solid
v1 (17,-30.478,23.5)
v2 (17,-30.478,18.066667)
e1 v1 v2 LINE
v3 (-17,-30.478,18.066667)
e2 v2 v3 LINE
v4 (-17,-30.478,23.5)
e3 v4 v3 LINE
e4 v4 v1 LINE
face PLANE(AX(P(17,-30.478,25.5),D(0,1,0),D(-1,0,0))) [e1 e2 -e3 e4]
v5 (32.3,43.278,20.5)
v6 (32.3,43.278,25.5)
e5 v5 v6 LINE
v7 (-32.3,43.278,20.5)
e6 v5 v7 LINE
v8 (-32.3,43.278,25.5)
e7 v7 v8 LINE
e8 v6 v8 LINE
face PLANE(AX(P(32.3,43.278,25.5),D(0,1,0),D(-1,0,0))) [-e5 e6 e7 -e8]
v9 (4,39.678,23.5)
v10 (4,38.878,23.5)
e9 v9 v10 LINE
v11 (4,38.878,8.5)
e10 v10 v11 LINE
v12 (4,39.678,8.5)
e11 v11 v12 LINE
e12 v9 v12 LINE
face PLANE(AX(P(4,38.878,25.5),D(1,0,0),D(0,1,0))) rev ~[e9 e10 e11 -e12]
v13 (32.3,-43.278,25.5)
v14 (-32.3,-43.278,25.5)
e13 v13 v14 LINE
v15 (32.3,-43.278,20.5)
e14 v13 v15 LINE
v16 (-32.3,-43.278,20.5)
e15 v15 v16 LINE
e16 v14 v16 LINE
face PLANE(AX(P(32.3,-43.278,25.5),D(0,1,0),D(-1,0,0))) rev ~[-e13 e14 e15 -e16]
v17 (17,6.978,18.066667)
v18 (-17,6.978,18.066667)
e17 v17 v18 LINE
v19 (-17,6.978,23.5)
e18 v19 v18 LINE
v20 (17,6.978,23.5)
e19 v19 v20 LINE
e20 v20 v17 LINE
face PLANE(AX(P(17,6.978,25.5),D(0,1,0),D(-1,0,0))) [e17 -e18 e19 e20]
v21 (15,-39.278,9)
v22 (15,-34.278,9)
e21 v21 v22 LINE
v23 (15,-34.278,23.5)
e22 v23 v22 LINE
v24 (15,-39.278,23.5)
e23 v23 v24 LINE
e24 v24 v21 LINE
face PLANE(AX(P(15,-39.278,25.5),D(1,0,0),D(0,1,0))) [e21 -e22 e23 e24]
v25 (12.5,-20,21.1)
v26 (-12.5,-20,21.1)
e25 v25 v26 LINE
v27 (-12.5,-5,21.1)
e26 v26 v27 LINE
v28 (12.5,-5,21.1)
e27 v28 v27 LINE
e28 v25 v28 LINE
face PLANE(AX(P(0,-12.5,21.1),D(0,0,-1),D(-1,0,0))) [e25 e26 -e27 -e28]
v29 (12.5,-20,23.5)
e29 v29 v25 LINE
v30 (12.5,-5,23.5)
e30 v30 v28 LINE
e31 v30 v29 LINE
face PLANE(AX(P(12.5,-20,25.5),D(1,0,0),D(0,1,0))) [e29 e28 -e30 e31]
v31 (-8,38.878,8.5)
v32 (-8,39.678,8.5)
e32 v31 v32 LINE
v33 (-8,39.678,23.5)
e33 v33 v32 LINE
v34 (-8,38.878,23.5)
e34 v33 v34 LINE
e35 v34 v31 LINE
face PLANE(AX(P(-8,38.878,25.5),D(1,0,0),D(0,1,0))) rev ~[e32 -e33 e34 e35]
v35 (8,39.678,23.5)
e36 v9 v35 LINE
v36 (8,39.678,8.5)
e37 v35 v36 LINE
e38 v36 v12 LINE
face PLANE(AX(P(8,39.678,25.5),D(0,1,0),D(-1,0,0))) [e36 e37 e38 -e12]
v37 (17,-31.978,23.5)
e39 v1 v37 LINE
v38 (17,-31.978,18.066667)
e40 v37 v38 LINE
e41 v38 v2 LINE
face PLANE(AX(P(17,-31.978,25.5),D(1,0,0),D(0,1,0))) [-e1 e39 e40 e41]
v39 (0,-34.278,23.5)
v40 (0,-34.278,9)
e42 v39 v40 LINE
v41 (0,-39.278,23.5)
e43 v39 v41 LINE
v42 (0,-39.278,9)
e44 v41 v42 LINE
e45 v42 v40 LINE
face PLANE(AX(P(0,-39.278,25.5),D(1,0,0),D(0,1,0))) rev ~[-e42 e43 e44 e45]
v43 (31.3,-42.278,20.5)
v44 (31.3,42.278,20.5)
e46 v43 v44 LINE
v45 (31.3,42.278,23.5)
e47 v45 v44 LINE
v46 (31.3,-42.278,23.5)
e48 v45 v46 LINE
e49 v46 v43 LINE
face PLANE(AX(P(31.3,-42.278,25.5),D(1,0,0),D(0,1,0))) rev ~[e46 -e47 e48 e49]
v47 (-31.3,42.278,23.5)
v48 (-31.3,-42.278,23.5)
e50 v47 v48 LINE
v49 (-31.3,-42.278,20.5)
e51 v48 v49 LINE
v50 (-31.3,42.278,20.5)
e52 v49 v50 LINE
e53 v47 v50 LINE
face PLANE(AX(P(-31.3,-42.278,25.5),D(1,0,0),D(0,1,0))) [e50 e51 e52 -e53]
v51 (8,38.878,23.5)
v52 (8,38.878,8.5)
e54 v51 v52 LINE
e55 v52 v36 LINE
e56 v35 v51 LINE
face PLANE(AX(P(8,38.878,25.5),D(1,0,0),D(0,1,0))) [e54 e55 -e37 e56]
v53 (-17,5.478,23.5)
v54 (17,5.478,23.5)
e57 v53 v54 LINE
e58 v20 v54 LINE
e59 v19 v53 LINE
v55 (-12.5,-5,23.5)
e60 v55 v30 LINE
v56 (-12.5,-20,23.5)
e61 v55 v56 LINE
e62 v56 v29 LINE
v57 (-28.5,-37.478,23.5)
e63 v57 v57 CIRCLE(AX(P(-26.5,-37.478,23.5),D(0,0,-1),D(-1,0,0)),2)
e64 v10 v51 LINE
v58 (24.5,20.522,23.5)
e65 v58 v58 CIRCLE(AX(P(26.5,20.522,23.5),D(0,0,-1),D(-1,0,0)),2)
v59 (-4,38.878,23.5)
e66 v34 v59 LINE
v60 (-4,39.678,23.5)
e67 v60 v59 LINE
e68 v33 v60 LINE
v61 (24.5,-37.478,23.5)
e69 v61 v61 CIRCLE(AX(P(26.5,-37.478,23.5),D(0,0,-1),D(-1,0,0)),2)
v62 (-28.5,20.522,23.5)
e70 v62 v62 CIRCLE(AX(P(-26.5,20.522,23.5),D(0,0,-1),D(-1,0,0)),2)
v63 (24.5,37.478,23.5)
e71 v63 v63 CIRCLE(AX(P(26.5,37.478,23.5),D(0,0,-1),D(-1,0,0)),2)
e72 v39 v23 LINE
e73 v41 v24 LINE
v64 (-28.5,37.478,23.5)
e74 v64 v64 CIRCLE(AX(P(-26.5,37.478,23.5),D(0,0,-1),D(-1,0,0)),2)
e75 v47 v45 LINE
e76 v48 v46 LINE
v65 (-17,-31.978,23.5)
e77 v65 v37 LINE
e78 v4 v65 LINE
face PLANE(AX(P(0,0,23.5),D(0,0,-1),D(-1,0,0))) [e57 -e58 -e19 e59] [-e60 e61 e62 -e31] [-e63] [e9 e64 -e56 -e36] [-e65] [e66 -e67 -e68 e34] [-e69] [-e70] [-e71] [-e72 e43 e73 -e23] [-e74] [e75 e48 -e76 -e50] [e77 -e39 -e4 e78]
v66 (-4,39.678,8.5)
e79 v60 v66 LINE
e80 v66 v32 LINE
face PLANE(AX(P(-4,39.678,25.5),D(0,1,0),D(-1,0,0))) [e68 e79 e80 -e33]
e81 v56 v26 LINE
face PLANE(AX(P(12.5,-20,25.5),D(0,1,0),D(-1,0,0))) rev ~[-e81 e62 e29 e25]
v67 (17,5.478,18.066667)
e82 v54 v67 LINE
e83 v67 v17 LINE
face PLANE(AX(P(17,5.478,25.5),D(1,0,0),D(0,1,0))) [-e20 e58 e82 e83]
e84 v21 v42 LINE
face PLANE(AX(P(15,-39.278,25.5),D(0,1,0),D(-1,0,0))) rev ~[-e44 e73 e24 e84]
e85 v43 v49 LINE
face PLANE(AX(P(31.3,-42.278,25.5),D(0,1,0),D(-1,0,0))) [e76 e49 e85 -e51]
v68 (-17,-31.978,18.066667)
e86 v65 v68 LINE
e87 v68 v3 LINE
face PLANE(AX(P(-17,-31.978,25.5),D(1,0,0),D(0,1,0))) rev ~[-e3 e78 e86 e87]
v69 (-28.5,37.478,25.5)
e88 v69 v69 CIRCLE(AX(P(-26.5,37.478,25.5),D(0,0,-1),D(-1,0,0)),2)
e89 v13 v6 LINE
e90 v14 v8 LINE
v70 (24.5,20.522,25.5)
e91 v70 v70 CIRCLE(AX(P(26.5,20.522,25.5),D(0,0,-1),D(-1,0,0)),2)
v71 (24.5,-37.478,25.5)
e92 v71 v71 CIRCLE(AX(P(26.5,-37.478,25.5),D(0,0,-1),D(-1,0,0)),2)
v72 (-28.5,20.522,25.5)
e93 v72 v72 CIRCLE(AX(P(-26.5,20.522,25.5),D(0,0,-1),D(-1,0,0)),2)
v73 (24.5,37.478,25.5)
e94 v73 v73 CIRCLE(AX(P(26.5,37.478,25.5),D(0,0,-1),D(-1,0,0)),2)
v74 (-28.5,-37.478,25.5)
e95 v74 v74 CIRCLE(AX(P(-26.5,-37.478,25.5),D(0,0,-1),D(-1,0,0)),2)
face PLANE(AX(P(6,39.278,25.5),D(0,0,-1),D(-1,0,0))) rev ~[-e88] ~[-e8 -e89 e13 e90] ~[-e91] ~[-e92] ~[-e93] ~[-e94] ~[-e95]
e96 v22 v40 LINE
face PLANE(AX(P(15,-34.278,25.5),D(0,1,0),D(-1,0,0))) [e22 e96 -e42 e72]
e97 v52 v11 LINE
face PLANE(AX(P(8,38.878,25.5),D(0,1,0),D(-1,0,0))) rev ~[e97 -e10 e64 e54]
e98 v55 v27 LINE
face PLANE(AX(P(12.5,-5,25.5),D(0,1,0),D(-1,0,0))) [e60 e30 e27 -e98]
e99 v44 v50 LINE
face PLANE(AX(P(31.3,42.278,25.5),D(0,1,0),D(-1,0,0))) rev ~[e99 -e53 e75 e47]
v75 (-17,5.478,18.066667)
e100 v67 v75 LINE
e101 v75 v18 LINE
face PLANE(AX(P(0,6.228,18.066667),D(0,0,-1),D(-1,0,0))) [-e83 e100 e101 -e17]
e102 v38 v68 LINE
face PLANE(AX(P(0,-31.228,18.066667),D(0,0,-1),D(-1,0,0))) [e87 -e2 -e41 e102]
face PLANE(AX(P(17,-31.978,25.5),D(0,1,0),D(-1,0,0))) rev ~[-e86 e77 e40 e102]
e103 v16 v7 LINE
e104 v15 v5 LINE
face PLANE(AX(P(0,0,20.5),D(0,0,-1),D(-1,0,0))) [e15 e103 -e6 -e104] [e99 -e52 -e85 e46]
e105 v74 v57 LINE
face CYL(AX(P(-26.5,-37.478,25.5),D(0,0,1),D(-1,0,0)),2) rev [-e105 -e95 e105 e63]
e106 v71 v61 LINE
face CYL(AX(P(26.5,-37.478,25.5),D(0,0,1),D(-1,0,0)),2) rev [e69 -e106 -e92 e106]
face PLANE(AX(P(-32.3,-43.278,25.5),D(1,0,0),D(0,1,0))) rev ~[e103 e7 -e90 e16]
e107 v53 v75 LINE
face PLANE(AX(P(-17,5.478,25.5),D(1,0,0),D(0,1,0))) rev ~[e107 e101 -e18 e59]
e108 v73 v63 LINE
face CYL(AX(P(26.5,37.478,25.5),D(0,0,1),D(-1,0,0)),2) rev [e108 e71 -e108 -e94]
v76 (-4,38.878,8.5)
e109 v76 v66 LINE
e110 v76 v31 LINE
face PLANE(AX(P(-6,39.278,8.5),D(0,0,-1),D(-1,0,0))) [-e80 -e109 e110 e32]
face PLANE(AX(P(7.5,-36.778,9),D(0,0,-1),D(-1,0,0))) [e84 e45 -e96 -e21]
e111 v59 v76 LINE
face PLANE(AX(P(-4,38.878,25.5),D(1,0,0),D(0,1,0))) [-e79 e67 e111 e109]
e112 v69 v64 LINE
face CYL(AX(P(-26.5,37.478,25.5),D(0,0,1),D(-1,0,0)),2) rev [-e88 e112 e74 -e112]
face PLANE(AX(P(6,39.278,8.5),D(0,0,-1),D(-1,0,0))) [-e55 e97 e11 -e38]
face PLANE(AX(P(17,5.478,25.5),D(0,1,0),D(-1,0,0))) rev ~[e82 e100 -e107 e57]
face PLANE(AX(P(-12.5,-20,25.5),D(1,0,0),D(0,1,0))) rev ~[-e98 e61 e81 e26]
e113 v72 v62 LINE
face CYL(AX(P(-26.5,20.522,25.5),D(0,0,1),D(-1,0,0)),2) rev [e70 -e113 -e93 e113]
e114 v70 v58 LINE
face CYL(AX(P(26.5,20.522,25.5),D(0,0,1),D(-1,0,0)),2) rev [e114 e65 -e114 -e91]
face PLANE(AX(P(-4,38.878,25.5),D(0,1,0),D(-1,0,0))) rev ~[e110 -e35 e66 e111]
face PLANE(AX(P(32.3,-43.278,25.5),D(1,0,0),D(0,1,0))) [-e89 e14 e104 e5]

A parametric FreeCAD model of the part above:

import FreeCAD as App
import Part
import Sketcher

V = App.Vector

doc = App.newDocument("Part")
params = doc.addObject("Spreadsheet::Sheet", "Params")
for row, (alias, value) in enumerate([
    ("sketch1_width", "64.6 mm"),
    ("pad1_length", "2 mm"),
    ("sketch2_width", "64.6 mm"),
    ("sketch2_width2", "62.6 mm"),
    ("pad2_length", "5 mm"),
    ("sketch3_width", "34 mm"),
    ("sketch3_height", "1.5 mm"),
    ("pad3_length", "7.433333 mm"),
    ("sketch4_width", "25 mm"),
    ("sketch4_height", "15 mm"),
    ("pad4_length", "4.4 mm"),
    ("sketch5_diameter", "4 mm"),
    ("pocket1_length", "2 mm"),
    ("sketch6_width", "15 mm"),
    ("sketch6_height", "5 mm"),
    ("pad5_length", "16.5 mm"),
    ("sketch7_width", "4 mm"),
    ("sketch7_height", "0.8 mm"),
    ("pad6_length", "17 mm"),
], start=1):
    params.set(f"A{row}", alias)
    params.set(f"B{row}", "=" + value)
    params.setAlias(f"B{row}", alias)

body = doc.addObject("PartDesign::Body", "Body")

sketch1 = body.newObject("Sketcher::SketchObject", "Sketch")
sketch1.AttachmentSupport = (doc.getObject("XY_Plane"), [""])
sketch1.MapMode = "FlatFace"
sketch1.addGeometry([
    Part.LineSegment(V(-32.3, 43.278, 0), V(-32.3, -43.278, 0)),
    Part.LineSegment(V(-32.3, -43.278, 0), V(32.3, -43.278, 0)),
    Part.LineSegment(V(32.3, -43.278, 0), V(32.3, 43.278, 0)),
    Part.LineSegment(V(32.3, 43.278, 0), V(-32.3, 43.278, 0)),
], False)
sketch1.addConstraint([
    Sketcher.Constraint("Coincident", 0, 2, 1, 1),
    Sketcher.Constraint("Coincident", 1, 2, 2, 1),
    Sketcher.Constraint("Coincident", 2, 2, 3, 1),
    Sketcher.Constraint("Coincident", 3, 2, 0, 1),
    Sketcher.Constraint("Vertical", 0),
    Sketcher.Constraint("Horizontal", 1),
    Sketcher.Constraint("Vertical", 2),
    Sketcher.Constraint("Horizontal", 3),
    Sketcher.Constraint("Symmetric", 0, 2, 2, 2, -1, 1),
    Sketcher.Constraint("DistanceX", 1, 1, 1, 2, 64.6),
    Sketcher.Constraint("DistanceY", 0, 2, 0, 1, 86.556),
])
sketch1.setExpression("Constraints[9]", "Params.sketch1_width")
pad1 = body.newObject("PartDesign::Pad", "Pad")
pad1.Profile = sketch1
pad1.setExpression("Length", "Params.pad1_length")

sketch2 = body.newObject("Sketcher::SketchObject", "Sketch001")
sketch2.AttachmentSupport = (doc.getObject("XY_Plane"), [""])
sketch2.MapMode = "FlatFace"
sketch2.addGeometry([
    Part.LineSegment(V(-32.3, 43.278, 0), V(-32.3, -43.278, 0)),
    Part.LineSegment(V(-32.3, -43.278, 0), V(32.3, -43.278, 0)),
    Part.LineSegment(V(32.3, -43.278, 0), V(32.3, 43.278, 0)),
    Part.LineSegment(V(32.3, 43.278, 0), V(-32.3, 43.278, 0)),
    Part.LineSegment(V(31.3, -42.278, 0), V(-31.3, -42.278, 0)),
    Part.LineSegment(V(-31.3, -42.278, 0), V(-31.3, 42.278, 0)),
    Part.LineSegment(V(-31.3, 42.278, 0), V(31.3, 42.278, 0)),
    Part.LineSegment(V(31.3, 42.278, 0), V(31.3, -42.278, 0)),
], False)
sketch2.addConstraint([
    Sketcher.Constraint("Coincident", 0, 2, 1, 1),
    Sketcher.Constraint("Coincident", 1, 2, 2, 1),
    Sketcher.Constraint("Coincident", 2, 2, 3, 1),
    Sketcher.Constraint("Coincident", 3, 2, 0, 1),
    Sketcher.Constraint("Coincident", 4, 2, 5, 1),
    Sketcher.Constraint("Coincident", 5, 2, 6, 1),
    Sketcher.Constraint("Coincident", 6, 2, 7, 1),
    Sketcher.Constraint("Coincident", 7, 2, 4, 1),
    Sketcher.Constraint("Vertical", 0),
    Sketcher.Constraint("Horizontal", 1),
    Sketcher.Constraint("Vertical", 2),
    Sketcher.Constraint("Horizontal", 3),
    Sketcher.Constraint("Horizontal", 4),
    Sketcher.Constraint("Vertical", 5),
    Sketcher.Constraint("Horizontal", 6),
    Sketcher.Constraint("Vertical", 7),
    Sketcher.Constraint("Symmetric", 0, 2, 2, 2, -1, 1),
    Sketcher.Constraint("Symmetric", 4, 2, 6, 2, -1, 1),
    Sketcher.Constraint("DistanceX", 1, 1, 1, 2, 64.6),
    Sketcher.Constraint("DistanceX", 4, 2, 4, 1, 62.6),
    Sketcher.Constraint("DistanceY", 0, 2, 4, 2, 1.0),
    Sketcher.Constraint("DistanceY", 0, 2, 0, 1, 86.556),
])
sketch2.setExpression("Constraints[18]", "Params.sketch2_width")
sketch2.setExpression("Constraints[19]", "Params.sketch2_width2")
pad2 = body.newObject("PartDesign::Pad", "Pad001")
pad2.Profile = sketch2
pad2.setExpression("Length", "Params.pad2_length")

sketch3 = body.newObject("Sketcher::SketchObject", "Sketch002")
sketch3.AttachmentSupport = (doc.getObject("XY_Plane"), [""])
sketch3.MapMode = "FlatFace"
sketch3.addGeometry([
    Part.LineSegment(V(-17, 6.978, 0), V(-17, 5.478, 0)),
    Part.LineSegment(V(-17, 5.478, 0), V(17, 5.478, 0)),
    Part.LineSegment(V(17, 5.478, 0), V(17, 6.978, 0)),
    Part.LineSegment(V(17, 6.978, 0), V(-17, 6.978, 0)),
    Part.LineSegment(V(-17, -30.478, 0), V(-17, -31.978, 0)),
    Part.LineSegment(V(-17, -31.978, 0), V(17, -31.978, 0)),
    Part.LineSegment(V(17, -31.978, 0), V(17, -30.478, 0)),
    Part.LineSegment(V(17, -30.478, 0), V(-17, -30.478, 0)),
], False)
sketch3.addConstraint([
    Sketcher.Constraint("Coincident", 0, 2, 1, 1),
    Sketcher.Constraint("Coincident", 1, 2, 2, 1),
    Sketcher.Constraint("Coincident", 2, 2, 3, 1),
    Sketcher.Constraint("Coincident", 3, 2, 0, 1),
    Sketcher.Constraint("Coincident", 4, 2, 5, 1),
    Sketcher.Constraint("Coincident", 5, 2, 6, 1),
    Sketcher.Constraint("Coincident", 6, 2, 7, 1),
    Sketcher.Constraint("Coincident", 7, 2, 4, 1),
    Sketcher.Constraint("Vertical", 0),
    Sketcher.Constraint("Horizontal", 1),
    Sketcher.Constraint("Vertical", 2),
    Sketcher.Constraint("Horizontal", 3),
    Sketcher.Constraint("Vertical", 4),
    Sketcher.Constraint("Horizontal", 5),
    Sketcher.Constraint("Vertical", 6),
    Sketcher.Constraint("Horizontal", 7),
    Sketcher.Constraint("Vertical", 3, 2, 4, 2),
    Sketcher.Constraint("Vertical", 2, 2, 5, 2),
    Sketcher.Constraint("Equal", 2, 4),
    Sketcher.Constraint("DistanceX", 1, 1, 1, 2, 34.0),
    Sketcher.Constraint("DistanceY", 0, 2, 0, 1, 1.5),
    Sketcher.Constraint("DistanceX", 0, 2, -1, 1, 17.0),
    Sketcher.Constraint("DistanceY", -1, 1, 0, 2, 5.478),
    Sketcher.Constraint("DistanceY", 4, 2, -1, 1, 31.978),
])
sketch3.setExpression("Constraints[19]", "Params.sketch3_width")
sketch3.setExpression("Constraints[20]", "Params.sketch3_height")
pad3 = body.newObject("PartDesign::Pad", "Pad002")
pad3.Profile = sketch3
pad3.setExpression("Length", "Params.pad3_length")

sketch4 = body.newObject("Sketcher::SketchObject", "Sketch003")
sketch4.AttachmentSupport = (doc.getObject("XY_Plane"), [""])
sketch4.MapMode = "FlatFace"
sketch4.addGeometry([
    Part.LineSegment(V(-12.5, -5, 0), V(-12.5, -20, 0)),
    Part.LineSegment(V(-12.5, -20, 0), V(12.5, -20, 0)),
    Part.LineSegment(V(12.5, -20, 0), V(12.5, -5, 0)),
    Part.LineSegment(V(12.5, -5, 0), V(-12.5, -5, 0)),
], False)
sketch4.addConstraint([
    Sketcher.Constraint("Coincident", 0, 2, 1, 1),
    Sketcher.Constraint("Coincident", 1, 2, 2, 1),
    Sketcher.Constraint("Coincident", 2, 2, 3, 1),
    Sketcher.Constraint("Coincident", 3, 2, 0, 1),
    Sketcher.Constraint("Vertical", 0),
    Sketcher.Constraint("Horizontal", 1),
    Sketcher.Constraint("Vertical", 2),
    Sketcher.Constraint("Horizontal", 3),
    Sketcher.Constraint("DistanceX", 1, 1, 1, 2, 25.0),
    Sketcher.Constraint("DistanceY", 0, 2, 0, 1, 15.0),
    Sketcher.Constraint("DistanceY", 0, 2, -1, 1, 20.0),
    Sketcher.Constraint("DistanceX", 0, 2, -1, 1, 12.5),
])
sketch4.setExpression("Constraints[8]", "Params.sketch4_width")
sketch4.setExpression("Constraints[9]", "Params.sketch4_height")
pad4 = body.newObject("PartDesign::Pad", "Pad003")
pad4.Profile = sketch4
pad4.setExpression("Length", "Params.pad4_length")

sketch5 = body.newObject("Sketcher::SketchObject", "Sketch004")
sketch5.AttachmentSupport = (doc.getObject("XY_Plane"), [""])
sketch5.MapMode = "FlatFace"
sketch5.addGeometry([
    Part.Circle(V(-26.5, 37.478, 0), V(0, 0, 1), 2),
    Part.Circle(V(-26.5, -37.478, 0), V(0, 0, 1), 2),
    Part.Circle(V(-26.5, 20.522, 0), V(0, 0, 1), 2),
    Part.Circle(V(26.5, 37.478, 0), V(0, 0, 1), 2),
    Part.Circle(V(26.5, 20.522, 0), V(0, 0, 1), 2),
    Part.Circle(V(26.5, -37.478, 0), V(0, 0, 1), 2),
], False)
sketch5.addConstraint([
    Sketcher.Constraint("Equal", 0, 1),
    Sketcher.Constraint("Equal", 1, 2),
    Sketcher.Constraint("Equal", 2, 3),
    Sketcher.Constraint("Equal", 3, 4),
    Sketcher.Constraint("Equal", 4, 5),
    Sketcher.Constraint("Symmetric", 1, 3, 3, 3, -1, 1),
    Sketcher.Constraint("Symmetric", 0, 3, 5, 3, -1, 1),
    Sketcher.Constraint("Symmetric", 0, 3, 3, 3, -2),
    Sketcher.Constraint("Symmetric", 2, 3, 4, 3, -2),
    Sketcher.Constraint("Vertical", 1, 3, 2, 3),
    Sketcher.Constraint("Diameter", 0, 4.0),
    Sketcher.Constraint("DistanceY", 1, 3, 2, 3, 58.0),
    Sketcher.Constraint("DistanceX", 0, 3, 3, 3, 53.0),
    Sketcher.Constraint("DistanceY", -1, 1, 0, 3, 37.478),
])
sketch5.setExpression("Constraints[10]", "Params.sketch5_diameter")
pocket1 = body.newObject("PartDesign::Pocket", "Pocket")
pocket1.Profile = sketch5
pocket1.setExpression("Length", "Params.pocket1_length")
pocket1.Reversed = True

sketch6 = body.newObject("Sketcher::SketchObject", "Sketch005")
sketch6.AttachmentSupport = (doc.getObject("XY_Plane"), [""])
sketch6.MapMode = "FlatFace"
sketch6.addGeometry([
    Part.LineSegment(V(-15, -34.278, 0), V(-15, -39.278, 0)),
    Part.LineSegment(V(-15, -39.278, 0), V(0, -39.278, 0)),
    Part.LineSegment(V(0, -39.278, 0), V(0, -34.278, 0)),
    Part.LineSegment(V(0, -34.278, 0), V(-15, -34.278, 0)),
], False)
sketch6.addConstraint([
    Sketcher.Constraint("Coincident", 0, 2, 1, 1),
    Sketcher.Constraint("Coincident", 1, 2, 2, 1),
    Sketcher.Constraint("Coincident", 2, 2, 3, 1),
    Sketcher.Constraint("Coincident", 3, 2, 0, 1),
    Sketcher.Constraint("Vertical", 0),
    Sketcher.Constraint("Horizontal", 1),
    Sketcher.Constraint("Vertical", 2),
    Sketcher.Constraint("Horizontal", 3),
    Sketcher.Constraint("PointOnObject", 1, 2, -2),
    Sketcher.Constraint("DistanceX", 1, 1, 1, 2, 15.0),
    Sketcher.Constraint("DistanceY", 0, 2, 0, 1, 5.0),
    Sketcher.Constraint("DistanceY", 0, 2, -1, 1, 39.278),
])
sketch6.setExpression("Constraints[9]", "Params.sketch6_width")
sketch6.setExpression("Constraints[10]", "Params.sketch6_height")
pad5 = body.newObject("PartDesign::Pad", "Pad004")
pad5.Profile = sketch6
pad5.setExpression("Length", "Params.pad5_length")

sketch7 = body.newObject("Sketcher::SketchObject", "Sketch006")
sketch7.AttachmentSupport = (doc.getObject("XY_Plane"), [""])
sketch7.MapMode = "FlatFace"
sketch7.addGeometry([
    Part.LineSegment(V(-8, 39.678, 0), V(-8, 38.878, 0)),
    Part.LineSegment(V(-8, 38.878, 0), V(-4, 38.878, 0)),
    Part.LineSegment(V(-4, 38.878, 0), V(-4, 39.678, 0)),
    Part.LineSegment(V(-4, 39.678, 0), V(-8, 39.678, 0)),
    Part.LineSegment(V(4, 39.678, 0), V(4, 38.878, 0)),
    Part.LineSegment(V(4, 38.878, 0), V(8, 38.878, 0)),
    Part.LineSegment(V(8, 38.878, 0), V(8, 39.678, 0)),
    Part.LineSegment(V(8, 39.678, 0), V(4, 39.678, 0)),
], False)
sketch7.addConstraint([
    Sketcher.Constraint("Coincident", 0, 2, 1, 1),
    Sketcher.Constraint("Coincident", 1, 2, 2, 1),
    Sketcher.Constraint("Coincident", 2, 2, 3, 1),
    Sketcher.Constraint("Coincident", 3, 2, 0, 1),
    Sketcher.Constraint("Coincident", 4, 2, 5, 1),
    Sketcher.Constraint("Coincident", 5, 2, 6, 1),
    Sketcher.Constraint("Coincident", 6, 2, 7, 1),
    Sketcher.Constraint("Coincident", 7, 2, 4, 1),
    Sketcher.Constraint("Vertical", 0),
    Sketcher.Constraint("Horizontal", 1),
    Sketcher.Constraint("Vertical", 2),
    Sketcher.Constraint("Horizontal", 3),
    Sketcher.Constraint("Vertical", 4),
    Sketcher.Constraint("Horizontal", 5),
    Sketcher.Constraint("Vertical", 6),
    Sketcher.Constraint("Horizontal", 7),
    Sketcher.Constraint("Symmetric", 1, 2, 4, 2, -2),
    Sketcher.Constraint("Symmetric", 3, 2, 6, 2, -2),
    Sketcher.Constraint("DistanceX", 1, 1, 1, 2, 4.0),
    Sketcher.Constraint("DistanceY", 0, 2, 0, 1, 0.8),
    Sketcher.Constraint("DistanceX", 0, 2, -1, 1, 8.0),
    Sketcher.Constraint("DistanceY", -1, 1, 0, 2, 38.878),
])
sketch7.setExpression("Constraints[18]", "Params.sketch7_width")
sketch7.setExpression("Constraints[19]", "Params.sketch7_height")
pad6 = body.newObject("PartDesign::Pad", "Pad005")
pad6.Profile = sketch7
pad6.setExpression("Length", "Params.pad6_length")
body2 = doc.addObject("PartDesign::Body", "Body001")
doc.recompute()

body.Placement = App.Placement(V(0, 0, 25.5), App.Rotation(V(0, 1, 0), 180))
boolean = body2.newObject("PartDesign::Boolean", "Boolean")
boolean.Type = "Fuse"
boolean.addObjects([body])

doc.recompute()
